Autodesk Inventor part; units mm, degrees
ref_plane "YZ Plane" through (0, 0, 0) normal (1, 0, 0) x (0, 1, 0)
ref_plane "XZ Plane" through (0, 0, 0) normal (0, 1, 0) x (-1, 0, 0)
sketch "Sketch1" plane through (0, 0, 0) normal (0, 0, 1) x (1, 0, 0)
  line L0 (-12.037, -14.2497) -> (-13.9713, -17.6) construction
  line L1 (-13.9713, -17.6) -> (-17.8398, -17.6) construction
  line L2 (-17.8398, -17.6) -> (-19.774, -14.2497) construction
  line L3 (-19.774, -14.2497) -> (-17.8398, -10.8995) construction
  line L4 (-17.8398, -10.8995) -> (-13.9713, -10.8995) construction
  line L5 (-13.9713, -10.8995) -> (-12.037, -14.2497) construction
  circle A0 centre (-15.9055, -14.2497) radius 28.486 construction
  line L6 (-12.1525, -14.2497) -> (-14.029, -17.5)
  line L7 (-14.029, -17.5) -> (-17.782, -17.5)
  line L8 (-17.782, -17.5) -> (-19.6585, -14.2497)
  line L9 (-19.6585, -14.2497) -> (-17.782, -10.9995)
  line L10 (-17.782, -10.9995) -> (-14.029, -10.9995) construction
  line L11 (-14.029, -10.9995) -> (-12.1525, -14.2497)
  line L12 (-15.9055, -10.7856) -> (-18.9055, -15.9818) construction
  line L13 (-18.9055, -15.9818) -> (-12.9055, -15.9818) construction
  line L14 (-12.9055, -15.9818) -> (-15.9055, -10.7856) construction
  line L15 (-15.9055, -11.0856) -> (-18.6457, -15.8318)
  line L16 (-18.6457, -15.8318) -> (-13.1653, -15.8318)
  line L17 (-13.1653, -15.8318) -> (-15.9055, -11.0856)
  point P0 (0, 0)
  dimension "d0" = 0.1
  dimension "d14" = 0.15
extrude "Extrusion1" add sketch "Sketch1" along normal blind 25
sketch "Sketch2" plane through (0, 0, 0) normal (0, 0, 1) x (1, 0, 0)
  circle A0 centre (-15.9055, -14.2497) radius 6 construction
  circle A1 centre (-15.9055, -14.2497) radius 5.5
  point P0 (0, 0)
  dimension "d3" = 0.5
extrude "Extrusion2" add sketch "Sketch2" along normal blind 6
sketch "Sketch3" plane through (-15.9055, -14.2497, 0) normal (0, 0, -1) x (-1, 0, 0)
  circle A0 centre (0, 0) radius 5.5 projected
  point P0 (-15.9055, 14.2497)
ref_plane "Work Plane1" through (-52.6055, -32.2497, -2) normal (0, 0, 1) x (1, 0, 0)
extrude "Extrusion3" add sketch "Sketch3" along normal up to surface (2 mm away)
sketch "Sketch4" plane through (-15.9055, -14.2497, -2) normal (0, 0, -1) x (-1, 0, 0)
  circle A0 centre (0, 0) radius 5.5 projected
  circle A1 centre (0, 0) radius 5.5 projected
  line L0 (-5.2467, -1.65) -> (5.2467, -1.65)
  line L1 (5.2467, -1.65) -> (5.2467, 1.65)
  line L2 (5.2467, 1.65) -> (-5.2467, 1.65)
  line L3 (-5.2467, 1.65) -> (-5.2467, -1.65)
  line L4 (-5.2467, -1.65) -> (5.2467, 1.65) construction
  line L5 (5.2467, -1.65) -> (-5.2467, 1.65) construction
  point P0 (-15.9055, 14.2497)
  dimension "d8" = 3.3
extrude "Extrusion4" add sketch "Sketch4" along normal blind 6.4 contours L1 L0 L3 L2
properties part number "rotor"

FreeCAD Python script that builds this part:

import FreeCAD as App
import Part
import Sketcher
Q = App.Units.Quantity


def add_polygon(sketch, points):
    """Adds a closed chain of lines whose ends are joined by coincident constraints."""
    first, n = sketch.GeometryCount, len(points)
    for a, b in zip(points, points[1:] + points[:1]):
        sketch.addGeometry(Part.LineSegment(App.Vector(*a, 0), App.Vector(*b, 0)), False)
    for i in range(n):
        sketch.addConstraint(Sketcher.Constraint("Coincident", first + i, 2, first + (i + 1) % n, 1))

doc = App.newDocument("Part")
body = doc.addObject("PartDesign::Body", "Body")

sketch1 = doc.addObject("Sketcher::SketchObject", "Sketch")
body.addObject(sketch1)
sketch1.AttachmentSupport = (doc.XY_Plane, [""])
sketch1.MapMode = "FlatFace"
add_polygon(sketch1, [(-13, -16), (-16, -11), (-19, -16)])
sketch1.addConstraint([
    Sketcher.Constraint("Horizontal", 2),
    Sketcher.Constraint("Equal", 0, 1),
    Sketcher.Constraint("Angle", 0, Q("119.9998 deg")),
    Sketcher.Constraint("DistanceX", 2, 1, 2, 2, Q("5.4804 mm")),
    Sketcher.Constraint("DistanceX", 0, 2, -1, 1, Q("15.9055 mm")),
    Sketcher.Constraint("DistanceY", 0, 2, -1, 1, Q("11.0856 mm")),
])
pad1 = doc.addObject("PartDesign::Pad", "Pad")
body.addObject(pad1)
pad1.Profile = sketch1
pad1.Length = 25

sketch2 = doc.addObject("Sketcher::SketchObject", "Sketch001")
body.addObject(sketch2)
sketch2.AttachmentSupport = (doc.XY_Plane, [""])
sketch2.MapMode = "FlatFace"
sketch2.addGeometry(Part.Circle(App.Vector(-16, -14, 0), App.Vector(0, 0, 1), 6), False)
sketch2.addConstraint([
    Sketcher.Constraint("Diameter", 0, Q("11 mm")),
    Sketcher.Constraint("DistanceX", 0, 3, -1, 1, Q("15.9055 mm")),
    Sketcher.Constraint("DistanceY", 0, 3, -1, 1, Q("14.2497 mm")),
])
pad2 = doc.addObject("PartDesign::Pad", "Pad001")
body.addObject(pad2)
pad2.Profile = sketch2
pad2.Length = 6

sketch3 = doc.addObject("Sketcher::SketchObject", "Sketch002")
body.addObject(sketch3)
sketch3.AttachmentSupport = (doc.XY_Plane, [""])
sketch3.MapMode = "FlatFace"
sketch3.addGeometry(Part.Circle(App.Vector(-16, -14, 0), App.Vector(0, 0, 1), 6), False)
sketch3.addConstraint([
    Sketcher.Constraint("Diameter", 0, Q("11 mm")),
    Sketcher.Constraint("DistanceX", 0, 3, -1, 1, Q("15.9055 mm")),
    Sketcher.Constraint("DistanceY", 0, 3, -1, 1, Q("14.2497 mm")),
])
pad3 = doc.addObject("PartDesign::Pad", "Pad002")
body.addObject(pad3)
pad3.Profile = sketch3
pad3.Length = 2
pad3.Reversed = True

sketch4 = doc.addObject("Sketcher::SketchObject", "Sketch003")
body.addObject(sketch4)
sketch4.AttachmentSupport = (doc.XY_Plane, [""])
sketch4.MapMode = "FlatFace"
sketch4.AttachmentOffset = App.Placement(App.Vector(0, 0, -2), App.Rotation())
add_polygon(sketch4, [(-21.2, -15.9), (-21.2, -12.6), (-10.7, -12.6), (-10.7, -15.9)])
sketch4.addConstraint([
    Sketcher.Constraint("Vertical", 0),
    Sketcher.Constraint("Horizontal", 1),
    Sketcher.Constraint("Vertical", 2),
    Sketcher.Constraint("Horizontal", 3),
    Sketcher.Constraint("DistanceY", 0, 1, 0, 2, Q("3.3 mm")),
    Sketcher.Constraint("DistanceX", 1, 1, 1, 2, Q("10.4934 mm")),
    Sketcher.Constraint("DistanceX", 0, 2, -1, 1, Q("21.1522 mm")),
    Sketcher.Constraint("DistanceY", 0, 2, -1, 1, Q("12.5997 mm")),
])
pad4 = doc.addObject("PartDesign::Pad", "Pad003")
body.addObject(pad4)
pad4.Profile = sketch4
pad4.Length = 6.4
pad4.Reversed = True

doc.recompute()
